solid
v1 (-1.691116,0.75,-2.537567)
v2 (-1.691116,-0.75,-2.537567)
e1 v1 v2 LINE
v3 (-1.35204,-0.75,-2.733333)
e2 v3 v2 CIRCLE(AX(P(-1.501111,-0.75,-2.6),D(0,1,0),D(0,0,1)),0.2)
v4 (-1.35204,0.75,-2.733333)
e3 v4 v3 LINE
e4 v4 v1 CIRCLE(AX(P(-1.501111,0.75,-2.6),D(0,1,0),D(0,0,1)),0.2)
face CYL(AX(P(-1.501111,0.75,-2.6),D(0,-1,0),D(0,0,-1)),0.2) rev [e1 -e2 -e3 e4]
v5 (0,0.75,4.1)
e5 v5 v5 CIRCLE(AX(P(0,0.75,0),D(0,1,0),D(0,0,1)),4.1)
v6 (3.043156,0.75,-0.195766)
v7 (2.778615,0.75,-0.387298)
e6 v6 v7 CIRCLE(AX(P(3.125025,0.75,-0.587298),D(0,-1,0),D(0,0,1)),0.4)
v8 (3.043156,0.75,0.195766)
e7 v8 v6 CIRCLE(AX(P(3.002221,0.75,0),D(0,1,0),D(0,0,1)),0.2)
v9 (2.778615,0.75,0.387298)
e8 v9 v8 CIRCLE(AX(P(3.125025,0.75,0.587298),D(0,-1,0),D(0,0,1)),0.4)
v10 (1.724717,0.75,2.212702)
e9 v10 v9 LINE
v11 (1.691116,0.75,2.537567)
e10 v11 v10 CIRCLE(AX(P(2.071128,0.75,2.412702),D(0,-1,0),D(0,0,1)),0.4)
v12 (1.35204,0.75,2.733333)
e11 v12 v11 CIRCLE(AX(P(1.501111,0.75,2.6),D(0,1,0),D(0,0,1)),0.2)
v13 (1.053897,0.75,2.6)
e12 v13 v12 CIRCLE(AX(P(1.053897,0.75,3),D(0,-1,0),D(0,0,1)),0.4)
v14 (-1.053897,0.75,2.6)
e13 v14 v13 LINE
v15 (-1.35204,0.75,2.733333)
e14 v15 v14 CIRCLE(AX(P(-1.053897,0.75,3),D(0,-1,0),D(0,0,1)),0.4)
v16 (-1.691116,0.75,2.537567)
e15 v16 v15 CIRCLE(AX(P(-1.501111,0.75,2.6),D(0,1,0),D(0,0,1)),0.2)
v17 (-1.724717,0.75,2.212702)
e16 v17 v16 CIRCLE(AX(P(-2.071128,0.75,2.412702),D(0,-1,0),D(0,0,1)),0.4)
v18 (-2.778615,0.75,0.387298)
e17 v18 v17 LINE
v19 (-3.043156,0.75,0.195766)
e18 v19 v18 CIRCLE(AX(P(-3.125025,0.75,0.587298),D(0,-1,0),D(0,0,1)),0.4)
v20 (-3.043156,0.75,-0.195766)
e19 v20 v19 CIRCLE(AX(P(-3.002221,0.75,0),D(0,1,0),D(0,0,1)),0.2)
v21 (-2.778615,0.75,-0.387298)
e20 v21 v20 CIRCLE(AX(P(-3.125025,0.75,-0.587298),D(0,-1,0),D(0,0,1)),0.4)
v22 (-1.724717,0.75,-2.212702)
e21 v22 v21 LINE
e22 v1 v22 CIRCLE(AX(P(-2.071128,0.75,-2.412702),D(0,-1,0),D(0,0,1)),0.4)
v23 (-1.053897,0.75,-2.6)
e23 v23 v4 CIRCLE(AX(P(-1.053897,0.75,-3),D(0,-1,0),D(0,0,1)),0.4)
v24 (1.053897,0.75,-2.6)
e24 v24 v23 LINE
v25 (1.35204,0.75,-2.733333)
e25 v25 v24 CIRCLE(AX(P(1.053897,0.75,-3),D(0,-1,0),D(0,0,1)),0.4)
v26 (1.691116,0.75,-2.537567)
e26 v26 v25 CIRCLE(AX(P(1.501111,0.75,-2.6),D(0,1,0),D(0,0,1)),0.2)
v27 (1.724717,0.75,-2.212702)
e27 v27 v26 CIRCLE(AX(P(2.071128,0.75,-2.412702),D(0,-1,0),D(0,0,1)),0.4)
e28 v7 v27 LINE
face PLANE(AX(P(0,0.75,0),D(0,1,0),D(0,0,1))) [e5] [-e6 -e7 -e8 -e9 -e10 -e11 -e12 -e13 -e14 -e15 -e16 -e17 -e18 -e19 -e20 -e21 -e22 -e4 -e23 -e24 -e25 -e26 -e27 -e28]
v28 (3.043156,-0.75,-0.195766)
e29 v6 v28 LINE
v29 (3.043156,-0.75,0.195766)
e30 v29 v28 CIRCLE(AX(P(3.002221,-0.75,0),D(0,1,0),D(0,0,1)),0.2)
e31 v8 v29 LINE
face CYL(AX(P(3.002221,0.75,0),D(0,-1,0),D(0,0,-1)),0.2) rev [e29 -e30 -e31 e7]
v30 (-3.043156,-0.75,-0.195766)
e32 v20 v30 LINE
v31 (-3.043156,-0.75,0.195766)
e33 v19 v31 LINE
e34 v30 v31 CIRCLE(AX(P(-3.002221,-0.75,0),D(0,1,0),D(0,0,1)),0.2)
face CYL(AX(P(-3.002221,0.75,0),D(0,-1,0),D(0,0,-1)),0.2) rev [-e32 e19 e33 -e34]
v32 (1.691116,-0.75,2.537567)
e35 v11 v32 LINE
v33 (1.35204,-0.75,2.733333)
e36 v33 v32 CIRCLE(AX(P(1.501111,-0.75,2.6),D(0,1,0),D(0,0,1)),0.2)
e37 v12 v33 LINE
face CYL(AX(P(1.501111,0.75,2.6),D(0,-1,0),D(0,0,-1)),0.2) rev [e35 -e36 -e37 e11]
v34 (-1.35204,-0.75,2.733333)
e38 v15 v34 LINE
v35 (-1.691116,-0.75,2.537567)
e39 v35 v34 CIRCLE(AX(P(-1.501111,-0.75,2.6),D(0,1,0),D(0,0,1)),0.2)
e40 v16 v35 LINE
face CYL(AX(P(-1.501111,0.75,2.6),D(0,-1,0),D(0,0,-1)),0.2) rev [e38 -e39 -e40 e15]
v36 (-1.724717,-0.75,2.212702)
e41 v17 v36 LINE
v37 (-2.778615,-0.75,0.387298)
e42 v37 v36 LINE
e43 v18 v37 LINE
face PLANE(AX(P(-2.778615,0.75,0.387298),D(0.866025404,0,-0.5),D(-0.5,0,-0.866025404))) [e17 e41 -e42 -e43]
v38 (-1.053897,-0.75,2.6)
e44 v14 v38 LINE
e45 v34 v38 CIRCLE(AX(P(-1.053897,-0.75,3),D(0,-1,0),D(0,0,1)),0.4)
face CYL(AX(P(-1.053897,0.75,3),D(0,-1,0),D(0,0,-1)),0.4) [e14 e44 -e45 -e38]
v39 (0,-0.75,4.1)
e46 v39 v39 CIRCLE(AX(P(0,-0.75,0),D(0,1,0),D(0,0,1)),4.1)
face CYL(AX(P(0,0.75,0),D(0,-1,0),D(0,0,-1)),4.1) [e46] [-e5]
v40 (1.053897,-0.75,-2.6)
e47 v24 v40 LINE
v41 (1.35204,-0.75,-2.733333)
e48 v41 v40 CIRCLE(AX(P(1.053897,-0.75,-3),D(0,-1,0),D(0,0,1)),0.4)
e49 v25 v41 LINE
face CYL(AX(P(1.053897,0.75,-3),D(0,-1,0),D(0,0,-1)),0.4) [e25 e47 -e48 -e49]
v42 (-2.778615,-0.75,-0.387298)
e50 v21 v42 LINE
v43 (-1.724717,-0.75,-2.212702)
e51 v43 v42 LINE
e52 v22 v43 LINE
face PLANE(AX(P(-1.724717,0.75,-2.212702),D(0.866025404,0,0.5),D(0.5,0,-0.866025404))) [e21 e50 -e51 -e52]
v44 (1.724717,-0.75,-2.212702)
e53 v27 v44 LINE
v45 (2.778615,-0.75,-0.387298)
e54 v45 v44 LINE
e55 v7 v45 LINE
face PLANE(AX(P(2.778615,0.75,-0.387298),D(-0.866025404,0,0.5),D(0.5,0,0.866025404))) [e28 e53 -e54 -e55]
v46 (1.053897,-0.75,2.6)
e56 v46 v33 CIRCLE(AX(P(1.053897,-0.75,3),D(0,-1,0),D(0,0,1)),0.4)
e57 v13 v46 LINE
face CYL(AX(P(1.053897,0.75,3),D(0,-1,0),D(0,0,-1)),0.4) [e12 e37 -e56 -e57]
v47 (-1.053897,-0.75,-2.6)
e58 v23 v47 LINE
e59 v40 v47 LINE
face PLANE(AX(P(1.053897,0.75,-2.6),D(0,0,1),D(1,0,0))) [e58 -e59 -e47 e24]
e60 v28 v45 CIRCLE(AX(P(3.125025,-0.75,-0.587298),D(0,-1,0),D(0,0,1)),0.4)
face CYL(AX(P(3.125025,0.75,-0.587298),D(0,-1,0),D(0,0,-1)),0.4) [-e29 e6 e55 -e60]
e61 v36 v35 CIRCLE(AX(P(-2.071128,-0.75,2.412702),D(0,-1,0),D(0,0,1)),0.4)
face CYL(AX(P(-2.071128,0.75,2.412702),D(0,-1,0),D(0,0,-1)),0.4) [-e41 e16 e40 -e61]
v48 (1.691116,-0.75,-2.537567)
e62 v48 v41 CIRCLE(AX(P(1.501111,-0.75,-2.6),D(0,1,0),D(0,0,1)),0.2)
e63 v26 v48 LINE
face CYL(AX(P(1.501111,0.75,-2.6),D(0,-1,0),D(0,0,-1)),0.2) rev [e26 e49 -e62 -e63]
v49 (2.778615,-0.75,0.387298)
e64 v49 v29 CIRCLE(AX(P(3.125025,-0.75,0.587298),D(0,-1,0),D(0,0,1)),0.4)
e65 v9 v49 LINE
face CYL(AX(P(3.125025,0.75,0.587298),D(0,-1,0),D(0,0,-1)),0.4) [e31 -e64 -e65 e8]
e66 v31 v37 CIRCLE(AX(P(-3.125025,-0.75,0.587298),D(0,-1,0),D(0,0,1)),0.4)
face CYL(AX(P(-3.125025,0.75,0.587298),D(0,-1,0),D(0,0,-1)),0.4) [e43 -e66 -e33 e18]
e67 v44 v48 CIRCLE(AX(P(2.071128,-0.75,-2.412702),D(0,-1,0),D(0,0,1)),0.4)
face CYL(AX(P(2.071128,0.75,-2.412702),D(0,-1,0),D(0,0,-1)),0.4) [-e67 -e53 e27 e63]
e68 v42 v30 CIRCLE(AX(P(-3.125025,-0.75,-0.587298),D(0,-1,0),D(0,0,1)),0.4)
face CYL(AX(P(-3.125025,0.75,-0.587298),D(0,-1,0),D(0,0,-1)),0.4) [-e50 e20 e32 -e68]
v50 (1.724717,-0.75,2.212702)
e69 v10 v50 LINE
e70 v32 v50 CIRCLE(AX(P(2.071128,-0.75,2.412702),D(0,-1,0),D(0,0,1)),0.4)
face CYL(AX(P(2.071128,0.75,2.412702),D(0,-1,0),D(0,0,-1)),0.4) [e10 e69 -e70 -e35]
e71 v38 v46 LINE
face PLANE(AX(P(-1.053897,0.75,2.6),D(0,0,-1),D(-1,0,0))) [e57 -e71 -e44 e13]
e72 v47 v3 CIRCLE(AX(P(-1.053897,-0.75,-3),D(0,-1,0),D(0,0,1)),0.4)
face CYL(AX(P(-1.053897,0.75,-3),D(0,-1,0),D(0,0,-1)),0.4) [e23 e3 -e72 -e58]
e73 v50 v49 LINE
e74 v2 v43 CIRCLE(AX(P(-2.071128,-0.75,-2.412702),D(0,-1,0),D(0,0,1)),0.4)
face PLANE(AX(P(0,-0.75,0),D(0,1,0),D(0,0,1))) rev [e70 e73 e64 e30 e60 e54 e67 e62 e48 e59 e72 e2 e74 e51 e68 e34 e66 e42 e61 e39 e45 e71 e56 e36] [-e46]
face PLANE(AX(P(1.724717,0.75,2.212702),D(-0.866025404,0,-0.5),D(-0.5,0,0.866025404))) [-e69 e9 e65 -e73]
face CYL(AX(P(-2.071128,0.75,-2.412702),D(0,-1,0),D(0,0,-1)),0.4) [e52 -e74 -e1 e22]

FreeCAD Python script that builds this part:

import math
import FreeCAD as App
import Part
import Sketcher

V = App.Vector
Q = App.Units.Quantity

doc = App.newDocument("Part")
body = doc.addObject("PartDesign::Body", "Body")

# Sketch on XZ plane
sketch1 = body.newObject("Sketcher::SketchObject", "Sketch")
sketch1.AttachmentSupport = (doc.getObject("XZ_Plane"), [""])
sketch1.MapMode = "FlatFace"
sketch1.addGeometry([
    Part.Circle(V(0, 0, 0), V(0, 0, 1), 4.1),  # 0
    Part.LineSegment(V(2.78, 0.39, 0), V(1.72, 2.21, 0)),  # 1
    Part.ArcOfCircle(Part.Circle(V(2.07, 2.41, 0), V(0, 0, 1), 0.4), math.radians(162), math.radians(210)),  # 2
    Part.ArcOfCircle(Part.Circle(V(1.5, 2.6, 0), V(0, 0, 1), 0.2), math.radians(-18), math.radians(138)),  # 3
    Part.ArcOfCircle(Part.Circle(V(1.05, 3, 0), V(0, 0, 1), 0.4), math.radians(-90), math.radians(-42)),  # 4
    Part.LineSegment(V(1.05, 2.6, 0), V(-1.05, 2.6, 0)),  # 5
    Part.ArcOfCircle(Part.Circle(V(-1.05, 3, 0), V(0, 0, 1), 0.4), math.radians(-138), math.radians(-90)),  # 6
    Part.ArcOfCircle(Part.Circle(V(-1.5, 2.6, 0), V(0, 0, 1), 0.2), math.radians(42), math.radians(198)),  # 7
    Part.ArcOfCircle(Part.Circle(V(-2.07, 2.41, 0), V(0, 0, 1), 0.4), math.radians(-30), math.radians(18)),  # 8
    Part.LineSegment(V(-1.72, 2.21, 0), V(-2.78, 0.39, 0)),  # 9
    Part.ArcOfCircle(Part.Circle(V(-3.13, 0.59, 0), V(0, 0, 1), 0.4), math.radians(-78), math.radians(-30)),  # 10
    Part.ArcOfCircle(Part.Circle(V(-3, 0, 0), V(0, 0, 1), 0.2), math.radians(102), math.radians(258)),  # 11
    Part.ArcOfCircle(Part.Circle(V(-3.13, -0.59, 0), V(0, 0, 1), 0.4), math.radians(30), math.radians(78)),  # 12
    Part.LineSegment(V(-2.78, -0.39, 0), V(-1.72, -2.21, 0)),  # 13
    Part.ArcOfCircle(Part.Circle(V(-2.07, -2.41, 0), V(0, 0, 1), 0.4), math.radians(-18), math.radians(30)),  # 14
    Part.ArcOfCircle(Part.Circle(V(-1.5, -2.6, 0), V(0, 0, 1), 0.2), math.radians(162), math.radians(318)),  # 15
    Part.ArcOfCircle(Part.Circle(V(-1.05, -3, 0), V(0, 0, 1), 0.4), math.radians(90), math.radians(138)),  # 16
    Part.LineSegment(V(-1.05, -2.6, 0), V(1.05, -2.6, 0)),  # 17
    Part.ArcOfCircle(Part.Circle(V(1.05, -3, 0), V(0, 0, 1), 0.4), math.radians(42), math.radians(90)),  # 18
    Part.ArcOfCircle(Part.Circle(V(1.5, -2.6, 0), V(0, 0, 1), 0.2), math.radians(-138), math.radians(18)),  # 19
    Part.ArcOfCircle(Part.Circle(V(2.07, -2.41, 0), V(0, 0, 1), 0.4), math.radians(150), math.radians(198)),  # 20
    Part.LineSegment(V(1.72, -2.21, 0), V(2.78, -0.39, 0)),  # 21
    Part.ArcOfCircle(Part.Circle(V(3.13, -0.59, 0), V(0, 0, 1), 0.4), math.radians(102), math.radians(150)),  # 22
    Part.ArcOfCircle(Part.Circle(V(3, 0, 0), V(0, 0, 1), 0.2), math.radians(-78), math.radians(78)),  # 23
    Part.ArcOfCircle(Part.Circle(V(3.13, 0.59, 0), V(0, 0, 1), 0.4), math.radians(-150), math.radians(-102)),  # 24
], False)
sketch1.addConstraint([
    Sketcher.Constraint("Tangent", 1, 2, 2, 2),
    Sketcher.Constraint("Tangent", 2, 1, 3, 1),
    Sketcher.Constraint("Tangent", 3, 2, 4, 2),
    Sketcher.Constraint("Tangent", 4, 1, 5, 1),
    Sketcher.Constraint("Tangent", 5, 2, 6, 2),
    Sketcher.Constraint("Tangent", 6, 1, 7, 1),
    Sketcher.Constraint("Tangent", 7, 2, 8, 2),
    Sketcher.Constraint("Tangent", 8, 1, 9, 1),
    Sketcher.Constraint("Tangent", 9, 2, 10, 2),
    Sketcher.Constraint("Tangent", 10, 1, 11, 1),
    Sketcher.Constraint("Tangent", 11, 2, 12, 2),
    Sketcher.Constraint("Tangent", 12, 1, 13, 1),
    Sketcher.Constraint("Tangent", 13, 2, 14, 2),
    Sketcher.Constraint("Tangent", 14, 1, 15, 1),
    Sketcher.Constraint("Tangent", 15, 2, 16, 2),
    Sketcher.Constraint("Tangent", 16, 1, 17, 1),
    Sketcher.Constraint("Tangent", 17, 2, 18, 2),
    Sketcher.Constraint("Tangent", 18, 1, 19, 1),
    Sketcher.Constraint("Tangent", 19, 2, 20, 2),
    Sketcher.Constraint("Tangent", 20, 1, 21, 1),
    Sketcher.Constraint("Tangent", 21, 2, 22, 2),
    Sketcher.Constraint("Tangent", 22, 1, 23, 1),
    Sketcher.Constraint("Tangent", 23, 2, 24, 2),
    Sketcher.Constraint("Tangent", 24, 1, 1, 1),
    Sketcher.Constraint("Horizontal", 5),
    Sketcher.Constraint("Horizontal", 17),
    Sketcher.Constraint("Coincident", 0, 3, -1, 1),
    Sketcher.Constraint("Equal", 2, 4),
    Sketcher.Constraint("Equal", 4, 6),
    Sketcher.Constraint("Equal", 3, 7),
    Sketcher.Constraint("Equal", 6, 8),
    Sketcher.Constraint("Equal", 8, 10),
    Sketcher.Constraint("Equal", 7, 11),
    Sketcher.Constraint("Equal", 10, 12),
    Sketcher.Constraint("Equal", 12, 14),
    Sketcher.Constraint("Equal", 11, 15),
    Sketcher.Constraint("Equal", 14, 16),
    Sketcher.Constraint("Equal", 16, 18),
    Sketcher.Constraint("Equal", 15, 19),
    Sketcher.Constraint("Equal", 18, 20),
    Sketcher.Constraint("Equal", 20, 22),
    Sketcher.Constraint("Equal", 19, 23),
    Sketcher.Constraint("Equal", 22, 24),
    Sketcher.Constraint("Symmetric", 2, 3, 14, 3, -1, 1),
    Sketcher.Constraint("Symmetric", 4, 3, 16, 3, -1, 1),
    Sketcher.Constraint("Symmetric", 7, 3, 19, 3, -1, 1),
    Sketcher.Constraint("Symmetric", 10, 3, 22, 3, -1, 1),
    Sketcher.Constraint("Symmetric", 12, 3, 24, 3, -1, 1),
    Sketcher.Constraint("Symmetric", 3, 3, 7, 3, -2),
    Sketcher.Constraint("Symmetric", 12, 3, 22, 3, -2),
    Sketcher.Constraint("Parallel", 9, 21),
    Sketcher.Constraint("Horizontal", 2, 3, 8, 3),
    Sketcher.Constraint("Horizontal", 7, 3, 4, 1),
    Sketcher.Constraint("Diameter", 0, Q("8.2 mm")),
    Sketcher.Constraint("Radius", 2, Q("0.4 mm")),
    Sketcher.Constraint("Radius", 3, Q("0.2 mm")),
    Sketcher.Constraint("Angle", 1, Q("120 deg")),
    Sketcher.Constraint("DistanceY", -1, 1, 4, 3, Q("3 mm")),
    Sketcher.Constraint("DistanceY", 12, 3, 8, 3, Q("3 mm")),
    Sketcher.Constraint("DistanceY", -1, 1, 2, 3, Q("2.412702 mm")),
    Sketcher.Constraint("DistanceX", 5, 2, 5, 1, Q("2.107794 mm")),
])
pad1 = body.newObject("PartDesign::Pad", "Pad")
pad1.Profile = sketch1
pad1.Length = 1.5
pad1.Midplane = True

doc.recompute()
